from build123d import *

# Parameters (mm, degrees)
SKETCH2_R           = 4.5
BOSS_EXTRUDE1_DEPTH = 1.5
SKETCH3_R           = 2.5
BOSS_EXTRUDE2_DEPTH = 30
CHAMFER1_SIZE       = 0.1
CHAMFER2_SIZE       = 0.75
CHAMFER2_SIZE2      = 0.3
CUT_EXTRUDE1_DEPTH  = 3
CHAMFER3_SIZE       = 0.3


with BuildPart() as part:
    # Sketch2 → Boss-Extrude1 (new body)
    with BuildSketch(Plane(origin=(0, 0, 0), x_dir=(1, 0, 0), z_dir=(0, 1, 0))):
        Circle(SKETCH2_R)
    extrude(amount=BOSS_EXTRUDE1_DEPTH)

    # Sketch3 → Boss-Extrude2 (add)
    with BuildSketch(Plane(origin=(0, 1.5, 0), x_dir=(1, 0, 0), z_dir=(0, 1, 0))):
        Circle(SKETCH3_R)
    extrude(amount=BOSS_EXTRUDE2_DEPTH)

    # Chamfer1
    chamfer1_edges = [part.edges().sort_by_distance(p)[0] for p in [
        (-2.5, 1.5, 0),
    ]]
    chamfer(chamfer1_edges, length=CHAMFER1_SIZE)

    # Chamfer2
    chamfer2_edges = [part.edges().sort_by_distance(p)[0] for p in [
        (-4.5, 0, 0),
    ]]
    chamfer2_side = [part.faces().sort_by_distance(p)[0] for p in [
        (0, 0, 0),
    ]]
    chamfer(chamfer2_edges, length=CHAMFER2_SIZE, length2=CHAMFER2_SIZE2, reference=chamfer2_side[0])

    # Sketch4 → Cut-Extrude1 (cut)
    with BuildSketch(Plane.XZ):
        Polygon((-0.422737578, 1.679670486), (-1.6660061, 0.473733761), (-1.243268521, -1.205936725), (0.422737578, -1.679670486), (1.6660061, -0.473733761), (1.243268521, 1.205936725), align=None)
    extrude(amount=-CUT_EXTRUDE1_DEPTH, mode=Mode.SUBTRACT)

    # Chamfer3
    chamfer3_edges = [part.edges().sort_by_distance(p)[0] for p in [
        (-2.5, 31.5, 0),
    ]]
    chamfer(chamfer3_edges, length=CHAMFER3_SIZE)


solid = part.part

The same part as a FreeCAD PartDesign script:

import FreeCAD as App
import Part
import Sketcher


def edges_at(feature, points):
    """Names of the edges that pass closest to the given points."""
    edges = feature.Shape.Edges
    near = lambda p: min(range(len(edges)), key=lambda i: edges[i].distToShape(Part.Vertex(*p))[0])
    return sorted({f"Edge{near(p) + 1}" for p in points})


def add_polygon(sketch, points):
    """Adds a closed chain of lines whose ends are joined by coincident constraints."""
    first, n = sketch.GeometryCount, len(points)
    for a, b in zip(points, points[1:] + points[:1]):
        sketch.addGeometry(Part.LineSegment(App.Vector(*a, 0), App.Vector(*b, 0)), False)
    for i in range(n):
        sketch.addConstraint(Sketcher.Constraint("Coincident", first + i, 2, first + (i + 1) % n, 1))

doc = App.newDocument("Part")
body = doc.addObject("PartDesign::Body", "Body")

# Sketch on XZ plane
sketch1 = doc.addObject("Sketcher::SketchObject", "Sketch")
body.addObject(sketch1)
sketch1.AttachmentSupport = (doc.XZ_Plane, [""])
sketch1.MapMode = "FlatFace"
sketch1.addGeometry(Part.Circle(App.Vector(0, 0, 0), App.Vector(0, 0, 1), 4.5), False)
sketch1.addConstraint([
    Sketcher.Constraint("Coincident", 0, 3, -1, 1),
    Sketcher.Constraint("Diameter", 0, 9.0),
])
pad1 = doc.addObject("PartDesign::Pad", "Pad")
body.addObject(pad1)
pad1.Profile = sketch1
pad1.Length = 1.5
pad1.Reversed = True

# Sketch on XZ plane
sketch2 = doc.addObject("Sketcher::SketchObject", "Sketch001")
body.addObject(sketch2)
sketch2.AttachmentSupport = (doc.XZ_Plane, [""])
sketch2.MapMode = "FlatFace"
sketch2.AttachmentOffset = App.Placement(App.Vector(0, 0, -1.5), App.Rotation())
sketch2.addGeometry(Part.Circle(App.Vector(0, 0, 0), App.Vector(0, 0, 1), 2.5), False)
sketch2.addConstraint([
    Sketcher.Constraint("Coincident", 0, 3, -1, 1),
    Sketcher.Constraint("Diameter", 0, 5.0),
])
pad2 = doc.addObject("PartDesign::Pad", "Pad001")
body.addObject(pad2)
pad2.Profile = sketch2
pad2.Length = 30
pad2.Reversed = True
doc.recompute()

chamfer = doc.addObject("PartDesign::Chamfer", "Chamfer")
body.addObject(chamfer)
chamfer.Base = (pad2, edges_at(pad2, [(-2.5, 1.5, 0)]))
chamfer.Size = 0.1
doc.recompute()

chamfer2 = doc.addObject("PartDesign::Chamfer", "Chamfer001")
body.addObject(chamfer2)
chamfer2.Base = (chamfer, edges_at(chamfer, [(-4.5, 0, 0)]))
chamfer2.ChamferType = "Two distances"
chamfer2.Size = 0.75
chamfer2.Size2 = 0.3
chamfer2.FlipDirection = True

# Sketch on XZ plane
sketch3 = doc.addObject("Sketcher::SketchObject", "Sketch002")
body.addObject(sketch3)
sketch3.AttachmentSupport = (doc.XZ_Plane, [""])
sketch3.MapMode = "FlatFace"
add_polygon(sketch3, [(-0.422738, 1.67967), (-1.666006, 0.473734), (-1.243269, -1.205937), (0.422738, -1.67967), (1.666006, -0.473734), (1.243269, 1.205937)])  # lines 0-5
sketch3.addConstraint([
    Sketcher.Constraint("Symmetric", 0, 2, 3, 2, -1, 1),
    Sketcher.Constraint("Symmetric", 1, 2, 4, 2, -1, 1),
    Sketcher.Constraint("Symmetric", 2, 2, 5, 2, -1, 1),
    Sketcher.Constraint("Equal", 0, 1),
    Sketcher.Constraint("Equal", 1, 2),
    Sketcher.Constraint("Distance", 0, 1.732051),
    Sketcher.Constraint("DistanceX", 1, 2, -1, 1, 1.243269),
    Sketcher.Constraint("DistanceY", 2, 2, -1, 1, 1.67967),
    Sketcher.Constraint("DistanceY", 1, 2, 0, 2, 1.67967),
])
pocket1 = doc.addObject("PartDesign::Pocket", "Pocket")
body.addObject(pocket1)
pocket1.Profile = sketch3
pocket1.Length = 3
doc.recompute()

chamfer3 = doc.addObject("PartDesign::Chamfer", "Chamfer002")
body.addObject(chamfer3)
chamfer3.Base = (pocket1, edges_at(pocket1, [(-2.5, 31.5, 0)]))
chamfer3.Size = 0.3

doc.recompute()
